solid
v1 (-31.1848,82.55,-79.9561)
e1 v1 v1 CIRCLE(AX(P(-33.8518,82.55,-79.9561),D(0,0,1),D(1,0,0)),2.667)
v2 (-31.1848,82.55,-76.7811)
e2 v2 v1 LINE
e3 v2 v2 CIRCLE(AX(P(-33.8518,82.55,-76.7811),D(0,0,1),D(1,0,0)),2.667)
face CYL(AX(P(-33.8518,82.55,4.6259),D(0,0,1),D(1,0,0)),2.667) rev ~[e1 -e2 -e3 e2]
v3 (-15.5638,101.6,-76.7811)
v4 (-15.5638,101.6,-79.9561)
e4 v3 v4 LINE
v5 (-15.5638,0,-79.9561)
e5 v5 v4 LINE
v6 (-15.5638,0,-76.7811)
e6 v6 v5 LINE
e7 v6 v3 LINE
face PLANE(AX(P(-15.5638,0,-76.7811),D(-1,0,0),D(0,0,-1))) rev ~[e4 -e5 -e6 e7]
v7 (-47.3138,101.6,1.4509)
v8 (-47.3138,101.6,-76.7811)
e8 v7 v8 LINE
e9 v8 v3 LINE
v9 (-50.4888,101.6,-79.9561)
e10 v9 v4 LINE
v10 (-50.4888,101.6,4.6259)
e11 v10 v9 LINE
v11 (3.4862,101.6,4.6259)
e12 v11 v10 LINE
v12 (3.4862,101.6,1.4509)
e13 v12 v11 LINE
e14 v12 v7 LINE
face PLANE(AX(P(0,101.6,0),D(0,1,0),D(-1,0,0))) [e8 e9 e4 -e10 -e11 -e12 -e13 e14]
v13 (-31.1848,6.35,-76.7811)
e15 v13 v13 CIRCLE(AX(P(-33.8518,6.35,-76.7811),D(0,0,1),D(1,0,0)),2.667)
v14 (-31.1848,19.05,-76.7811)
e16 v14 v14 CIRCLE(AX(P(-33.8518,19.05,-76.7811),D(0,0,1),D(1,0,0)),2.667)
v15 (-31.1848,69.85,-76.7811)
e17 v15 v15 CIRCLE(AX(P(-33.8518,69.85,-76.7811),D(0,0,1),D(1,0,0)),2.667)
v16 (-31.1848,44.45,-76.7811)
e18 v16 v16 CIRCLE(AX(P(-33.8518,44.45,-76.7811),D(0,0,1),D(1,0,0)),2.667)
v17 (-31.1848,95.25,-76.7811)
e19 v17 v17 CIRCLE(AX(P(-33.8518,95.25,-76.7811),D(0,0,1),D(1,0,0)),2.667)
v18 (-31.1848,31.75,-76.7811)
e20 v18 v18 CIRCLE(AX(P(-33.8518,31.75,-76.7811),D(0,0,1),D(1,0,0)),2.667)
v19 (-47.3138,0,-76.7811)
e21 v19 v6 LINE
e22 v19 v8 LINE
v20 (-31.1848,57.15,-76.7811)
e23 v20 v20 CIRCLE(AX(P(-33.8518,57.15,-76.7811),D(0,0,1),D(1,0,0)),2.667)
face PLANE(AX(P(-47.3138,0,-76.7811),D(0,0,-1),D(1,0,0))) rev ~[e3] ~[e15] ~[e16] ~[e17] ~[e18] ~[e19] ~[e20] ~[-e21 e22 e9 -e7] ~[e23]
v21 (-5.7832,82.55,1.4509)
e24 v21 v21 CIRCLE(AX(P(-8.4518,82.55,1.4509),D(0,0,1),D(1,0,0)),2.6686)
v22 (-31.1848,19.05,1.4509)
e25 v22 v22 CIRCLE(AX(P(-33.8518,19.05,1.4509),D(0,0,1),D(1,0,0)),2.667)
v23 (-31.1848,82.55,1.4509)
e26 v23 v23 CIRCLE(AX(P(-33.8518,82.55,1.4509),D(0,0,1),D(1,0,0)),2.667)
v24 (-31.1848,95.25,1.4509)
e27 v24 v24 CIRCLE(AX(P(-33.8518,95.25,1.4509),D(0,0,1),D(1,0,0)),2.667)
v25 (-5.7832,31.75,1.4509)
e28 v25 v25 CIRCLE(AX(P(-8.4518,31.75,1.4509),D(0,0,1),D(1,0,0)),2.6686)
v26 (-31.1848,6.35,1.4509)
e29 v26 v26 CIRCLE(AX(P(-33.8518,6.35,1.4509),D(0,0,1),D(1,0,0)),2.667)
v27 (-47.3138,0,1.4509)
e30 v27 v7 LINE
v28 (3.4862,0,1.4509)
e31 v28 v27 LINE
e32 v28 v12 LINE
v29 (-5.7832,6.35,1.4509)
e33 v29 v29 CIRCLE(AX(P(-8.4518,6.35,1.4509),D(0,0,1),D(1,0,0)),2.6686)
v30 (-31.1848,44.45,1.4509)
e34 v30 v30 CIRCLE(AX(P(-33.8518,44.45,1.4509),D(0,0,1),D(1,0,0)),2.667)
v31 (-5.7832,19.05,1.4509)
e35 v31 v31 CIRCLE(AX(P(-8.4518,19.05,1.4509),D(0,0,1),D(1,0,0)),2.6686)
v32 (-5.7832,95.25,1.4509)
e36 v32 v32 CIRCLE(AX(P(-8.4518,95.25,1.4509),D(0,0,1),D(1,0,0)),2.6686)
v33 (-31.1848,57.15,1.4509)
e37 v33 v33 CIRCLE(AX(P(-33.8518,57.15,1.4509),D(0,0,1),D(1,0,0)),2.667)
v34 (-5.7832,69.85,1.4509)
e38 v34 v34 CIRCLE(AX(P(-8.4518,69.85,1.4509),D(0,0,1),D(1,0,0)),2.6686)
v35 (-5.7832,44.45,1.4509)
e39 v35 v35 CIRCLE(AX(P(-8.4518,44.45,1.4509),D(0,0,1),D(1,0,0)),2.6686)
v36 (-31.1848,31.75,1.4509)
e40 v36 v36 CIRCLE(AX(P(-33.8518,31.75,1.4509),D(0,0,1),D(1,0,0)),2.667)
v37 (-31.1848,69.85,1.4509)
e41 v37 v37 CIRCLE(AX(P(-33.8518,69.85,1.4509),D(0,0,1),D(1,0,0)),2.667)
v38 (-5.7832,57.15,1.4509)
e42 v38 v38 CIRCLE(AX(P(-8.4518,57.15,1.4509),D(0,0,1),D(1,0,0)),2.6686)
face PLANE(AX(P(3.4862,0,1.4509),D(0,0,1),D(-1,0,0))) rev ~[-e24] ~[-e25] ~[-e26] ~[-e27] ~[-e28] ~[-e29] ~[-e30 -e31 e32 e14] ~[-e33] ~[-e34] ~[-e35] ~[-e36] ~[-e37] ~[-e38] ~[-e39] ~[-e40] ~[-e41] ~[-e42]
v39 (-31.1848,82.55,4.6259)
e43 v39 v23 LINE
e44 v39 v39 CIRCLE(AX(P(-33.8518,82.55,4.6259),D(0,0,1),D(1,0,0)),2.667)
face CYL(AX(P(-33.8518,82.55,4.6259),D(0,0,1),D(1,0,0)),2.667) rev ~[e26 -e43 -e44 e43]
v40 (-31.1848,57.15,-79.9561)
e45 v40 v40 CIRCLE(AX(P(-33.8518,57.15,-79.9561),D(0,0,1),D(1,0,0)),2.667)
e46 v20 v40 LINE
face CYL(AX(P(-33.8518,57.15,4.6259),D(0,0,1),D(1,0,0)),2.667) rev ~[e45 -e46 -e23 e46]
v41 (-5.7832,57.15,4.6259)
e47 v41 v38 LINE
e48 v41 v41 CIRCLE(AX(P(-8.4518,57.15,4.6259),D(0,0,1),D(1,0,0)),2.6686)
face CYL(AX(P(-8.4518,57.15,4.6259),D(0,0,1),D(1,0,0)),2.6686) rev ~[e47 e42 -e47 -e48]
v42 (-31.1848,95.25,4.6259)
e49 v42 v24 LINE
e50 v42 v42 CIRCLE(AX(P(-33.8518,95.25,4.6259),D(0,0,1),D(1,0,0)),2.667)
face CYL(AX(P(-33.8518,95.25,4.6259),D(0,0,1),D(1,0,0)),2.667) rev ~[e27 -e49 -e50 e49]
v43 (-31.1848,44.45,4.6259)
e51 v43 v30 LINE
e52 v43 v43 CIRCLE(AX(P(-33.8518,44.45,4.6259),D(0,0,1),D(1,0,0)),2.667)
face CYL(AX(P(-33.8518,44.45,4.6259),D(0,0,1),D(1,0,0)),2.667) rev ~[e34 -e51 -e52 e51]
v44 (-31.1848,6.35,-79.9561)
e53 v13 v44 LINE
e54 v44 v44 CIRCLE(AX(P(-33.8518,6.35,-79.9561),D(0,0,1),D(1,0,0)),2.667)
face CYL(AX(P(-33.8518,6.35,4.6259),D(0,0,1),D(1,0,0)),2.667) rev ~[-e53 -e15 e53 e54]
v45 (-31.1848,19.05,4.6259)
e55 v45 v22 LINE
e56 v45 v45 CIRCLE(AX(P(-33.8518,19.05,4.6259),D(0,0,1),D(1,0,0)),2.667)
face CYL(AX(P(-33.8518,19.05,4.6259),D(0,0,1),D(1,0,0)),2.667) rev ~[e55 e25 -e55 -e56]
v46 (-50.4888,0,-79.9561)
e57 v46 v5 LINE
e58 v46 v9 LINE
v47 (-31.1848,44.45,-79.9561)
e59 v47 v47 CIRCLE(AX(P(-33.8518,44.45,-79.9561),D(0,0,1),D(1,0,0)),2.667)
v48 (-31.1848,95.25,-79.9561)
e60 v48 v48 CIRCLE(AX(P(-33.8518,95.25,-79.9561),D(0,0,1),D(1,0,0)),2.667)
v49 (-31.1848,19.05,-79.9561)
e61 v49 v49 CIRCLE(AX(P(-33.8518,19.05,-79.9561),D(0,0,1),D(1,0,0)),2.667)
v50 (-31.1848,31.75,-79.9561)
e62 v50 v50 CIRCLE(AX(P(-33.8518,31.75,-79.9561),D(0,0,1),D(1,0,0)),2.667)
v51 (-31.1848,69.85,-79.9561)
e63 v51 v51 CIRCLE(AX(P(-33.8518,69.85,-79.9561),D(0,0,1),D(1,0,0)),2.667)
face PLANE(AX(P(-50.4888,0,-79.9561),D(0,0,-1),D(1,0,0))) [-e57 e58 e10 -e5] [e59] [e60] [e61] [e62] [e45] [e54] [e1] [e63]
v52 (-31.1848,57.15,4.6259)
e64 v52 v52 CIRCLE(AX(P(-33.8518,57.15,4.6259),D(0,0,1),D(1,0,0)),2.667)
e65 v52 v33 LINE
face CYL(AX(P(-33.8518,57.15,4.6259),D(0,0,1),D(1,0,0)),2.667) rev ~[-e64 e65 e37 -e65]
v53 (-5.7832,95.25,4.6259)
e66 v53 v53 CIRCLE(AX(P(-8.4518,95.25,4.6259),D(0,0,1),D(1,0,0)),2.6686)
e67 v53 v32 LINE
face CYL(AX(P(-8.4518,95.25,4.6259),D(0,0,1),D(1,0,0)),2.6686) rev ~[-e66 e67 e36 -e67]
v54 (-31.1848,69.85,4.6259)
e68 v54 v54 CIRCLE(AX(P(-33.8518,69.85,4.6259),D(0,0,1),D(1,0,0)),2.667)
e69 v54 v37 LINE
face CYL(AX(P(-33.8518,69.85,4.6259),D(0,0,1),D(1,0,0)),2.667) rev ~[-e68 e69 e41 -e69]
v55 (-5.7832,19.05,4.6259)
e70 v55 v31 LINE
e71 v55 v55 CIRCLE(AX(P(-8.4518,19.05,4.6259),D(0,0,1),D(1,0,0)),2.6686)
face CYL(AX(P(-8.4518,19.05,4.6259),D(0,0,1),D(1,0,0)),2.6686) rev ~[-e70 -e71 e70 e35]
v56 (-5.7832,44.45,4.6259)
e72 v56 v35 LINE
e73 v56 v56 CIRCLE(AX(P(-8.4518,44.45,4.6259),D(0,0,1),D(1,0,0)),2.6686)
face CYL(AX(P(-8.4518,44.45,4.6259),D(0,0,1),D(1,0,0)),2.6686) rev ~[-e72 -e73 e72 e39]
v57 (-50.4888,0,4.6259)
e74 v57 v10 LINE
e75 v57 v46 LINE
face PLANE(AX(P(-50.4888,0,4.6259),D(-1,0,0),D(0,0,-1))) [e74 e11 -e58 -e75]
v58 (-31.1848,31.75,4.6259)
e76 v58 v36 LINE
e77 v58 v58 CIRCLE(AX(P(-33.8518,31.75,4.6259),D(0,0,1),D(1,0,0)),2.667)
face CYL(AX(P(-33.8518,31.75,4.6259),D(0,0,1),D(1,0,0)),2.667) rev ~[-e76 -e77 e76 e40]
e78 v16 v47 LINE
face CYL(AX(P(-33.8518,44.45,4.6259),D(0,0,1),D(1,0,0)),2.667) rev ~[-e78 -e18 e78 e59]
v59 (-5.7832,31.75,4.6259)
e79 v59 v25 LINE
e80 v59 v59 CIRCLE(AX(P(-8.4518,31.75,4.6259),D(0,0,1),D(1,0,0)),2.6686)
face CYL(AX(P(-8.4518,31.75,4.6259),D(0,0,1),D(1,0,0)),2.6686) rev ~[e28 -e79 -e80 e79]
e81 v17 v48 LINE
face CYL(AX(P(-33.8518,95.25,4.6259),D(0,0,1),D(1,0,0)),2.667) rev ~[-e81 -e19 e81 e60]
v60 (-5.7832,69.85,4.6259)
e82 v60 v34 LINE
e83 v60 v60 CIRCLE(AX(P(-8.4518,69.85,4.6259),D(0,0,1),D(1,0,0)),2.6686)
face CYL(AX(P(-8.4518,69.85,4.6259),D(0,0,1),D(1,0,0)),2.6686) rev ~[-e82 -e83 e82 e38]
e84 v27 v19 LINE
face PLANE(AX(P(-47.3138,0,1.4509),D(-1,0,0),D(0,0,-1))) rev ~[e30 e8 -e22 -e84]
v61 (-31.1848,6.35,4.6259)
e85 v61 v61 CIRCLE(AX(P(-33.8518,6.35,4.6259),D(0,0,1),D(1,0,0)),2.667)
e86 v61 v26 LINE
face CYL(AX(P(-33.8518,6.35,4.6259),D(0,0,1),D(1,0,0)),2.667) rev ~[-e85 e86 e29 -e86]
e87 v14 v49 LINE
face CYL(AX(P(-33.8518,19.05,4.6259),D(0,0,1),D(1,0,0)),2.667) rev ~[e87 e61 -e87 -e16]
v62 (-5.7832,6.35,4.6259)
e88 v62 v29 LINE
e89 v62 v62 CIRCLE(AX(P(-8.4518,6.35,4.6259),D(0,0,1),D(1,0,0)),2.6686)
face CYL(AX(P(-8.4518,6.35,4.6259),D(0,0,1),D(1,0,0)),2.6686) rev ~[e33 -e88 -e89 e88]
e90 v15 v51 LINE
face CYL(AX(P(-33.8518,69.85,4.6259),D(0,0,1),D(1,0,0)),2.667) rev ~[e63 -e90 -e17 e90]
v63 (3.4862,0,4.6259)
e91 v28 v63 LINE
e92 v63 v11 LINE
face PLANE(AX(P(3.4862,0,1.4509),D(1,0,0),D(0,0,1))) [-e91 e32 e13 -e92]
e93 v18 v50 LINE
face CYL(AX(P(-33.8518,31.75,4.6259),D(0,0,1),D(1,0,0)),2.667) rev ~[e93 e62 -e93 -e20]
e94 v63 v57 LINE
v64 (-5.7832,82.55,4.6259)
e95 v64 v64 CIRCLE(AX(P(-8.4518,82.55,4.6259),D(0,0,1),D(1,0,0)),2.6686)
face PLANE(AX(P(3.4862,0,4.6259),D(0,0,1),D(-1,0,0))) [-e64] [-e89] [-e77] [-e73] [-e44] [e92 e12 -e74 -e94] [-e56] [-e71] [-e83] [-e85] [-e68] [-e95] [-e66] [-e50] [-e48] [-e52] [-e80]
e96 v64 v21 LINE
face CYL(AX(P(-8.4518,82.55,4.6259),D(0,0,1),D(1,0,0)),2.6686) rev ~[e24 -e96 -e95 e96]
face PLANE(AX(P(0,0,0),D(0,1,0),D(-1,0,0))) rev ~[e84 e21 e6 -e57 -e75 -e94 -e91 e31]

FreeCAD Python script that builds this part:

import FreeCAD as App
import Part
import Sketcher
Q = App.Units.Quantity


def add_polygon(sketch, points):
    """Adds a closed chain of lines whose ends are joined by coincident constraints."""
    first, n = sketch.GeometryCount, len(points)
    for a, b in zip(points, points[1:] + points[:1]):
        sketch.addGeometry(Part.LineSegment(App.Vector(*a, 0), App.Vector(*b, 0)), False)
    for i in range(n):
        sketch.addConstraint(Sketcher.Constraint("Coincident", first + i, 2, first + (i + 1) % n, 1))

doc = App.newDocument("Part")
params = doc.addObject("Spreadsheet::Sheet", "Params")
for row, (alias, value) in enumerate([
    ("sketch1_width", "2 in"),
    ("sketch1_width2", "1.25 in"),
    ("sketch1_height", "3.08 in"),
    ("sketch1_height2", "3.33 in"),
    ("sketch1_width3", "2.125 in"),
    ("pad1_length", "4 in"),
    ("sketch2_diameter", "0.21 in"),
    ("pocket1_length", "4.125 in"),
], start=1):
    params.set(f"A{row}", alias)
    params.set(f"B{row}", "=" + value)
    params.setAlias(f"B{row}", alias)

body = doc.addObject("PartDesign::Body", "Body")

sketch1 = body.newObject("Sketcher::SketchObject", "Sketch")
sketch1.AttachmentSupport = (doc.getObject("XZ_Plane"), [""])
sketch1.MapMode = "FlatFace"
add_polygon(sketch1, [(-50.5, 4.6), (3.5, 4.6), (3.5, 1.5), (-47.3, 1.5), (-47.3, -76.8), (-15.6, -76.8), (-15.6, -80), (-50.5, -80)])
sketch1.addConstraint([
    Sketcher.Constraint("Horizontal", 0),
    Sketcher.Constraint("Vertical", 1),
    Sketcher.Constraint("Horizontal", 2),
    Sketcher.Constraint("Vertical", 3),
    Sketcher.Constraint("Horizontal", 4),
    Sketcher.Constraint("Vertical", 5),
    Sketcher.Constraint("Horizontal", 6),
    Sketcher.Constraint("Vertical", 7),
    Sketcher.Constraint("Equal", 1, 5),
    Sketcher.Constraint("DistanceX", 2, 2, 2, 1, Q("2 in")),
    Sketcher.Constraint("DistanceX", 4, 1, 4, 2, Q("1.25 in")),
    Sketcher.Constraint("DistanceY", 3, 2, 3, 1, Q("3.08 in")),
    Sketcher.Constraint("DistanceY", 7, 1, 7, 2, Q("3.33 in")),
    Sketcher.Constraint("DistanceX", 0, 1, 0, 2, Q("2.125 in")),
    Sketcher.Constraint("DistanceX", -1, 1, 0, 2, Q("3.4862 mm")),
    Sketcher.Constraint("DistanceY", -1, 1, 0, 2, Q("4.626 mm")),
])
sketch1.setExpression("Constraints[17]", "Params.sketch1_width")
sketch1.setExpression("Constraints[18]", "Params.sketch1_width2")
sketch1.setExpression("Constraints[19]", "Params.sketch1_height")
sketch1.setExpression("Constraints[20]", "Params.sketch1_height2")
sketch1.setExpression("Constraints[21]", "Params.sketch1_width3")
pad1 = body.newObject("PartDesign::Pad", "Pad")
pad1.Profile = sketch1
pad1.setExpression("Length", "Params.pad1_length")
pad1.Reversed = True

sketch2 = body.newObject("Sketcher::SketchObject", "Sketch001")
sketch2.AttachmentSupport = (doc.getObject("XY_Plane"), [""])
sketch2.MapMode = "FlatFace"
sketch2.AttachmentOffset = App.Placement(App.Vector(0, 0, 4.6259), App.Rotation())
sketch2.addGeometry([
    Part.Circle(App.Vector(-33.9, 95.2, 0), App.Vector(0, 0, 1), 2.7),
    Part.Circle(App.Vector(-8.5, 95.2, 0), App.Vector(0, 0, 1), 2.7),
    Part.Circle(App.Vector(-33.9, 82.5, 0), App.Vector(0, 0, 1), 2.7),
    Part.Circle(App.Vector(-8.5, 82.5, 0), App.Vector(0, 0, 1), 2.7),
    Part.Circle(App.Vector(-33.9, 69.8, 0), App.Vector(0, 0, 1), 2.7),
    Part.Circle(App.Vector(-8.5, 69.8, 0), App.Vector(0, 0, 1), 2.7),
    Part.Circle(App.Vector(-33.9, 57.1, 0), App.Vector(0, 0, 1), 2.7),
    Part.Circle(App.Vector(-8.5, 57.1, 0), App.Vector(0, 0, 1), 2.7),
    Part.Circle(App.Vector(-33.9, 44.5, 0), App.Vector(0, 0, 1), 2.7),
    Part.Circle(App.Vector(-8.5, 44.5, 0), App.Vector(0, 0, 1), 2.7),
    Part.Circle(App.Vector(-33.9, 31.8, 0), App.Vector(0, 0, 1), 2.7),
    Part.Circle(App.Vector(-8.5, 31.8, 0), App.Vector(0, 0, 1), 2.7),
    Part.Circle(App.Vector(-33.9, 19.1, 0), App.Vector(0, 0, 1), 2.7),
    Part.Circle(App.Vector(-8.5, 19.1, 0), App.Vector(0, 0, 1), 2.7),
    Part.Circle(App.Vector(-33.9, 6.3, 0), App.Vector(0, 0, 1), 2.7),
    Part.Circle(App.Vector(-8.5, 6.3, 0), App.Vector(0, 0, 1), 2.7),
], False)
sketch2.addConstraint([
    Sketcher.Constraint("Equal", 0, 2),
    Sketcher.Constraint("Equal", 1, 3),
    Sketcher.Constraint("Equal", 2, 4),
    Sketcher.Constraint("Equal", 3, 5),
    Sketcher.Constraint("Equal", 4, 6),
    Sketcher.Constraint("Equal", 5, 7),
    Sketcher.Constraint("Equal", 6, 8),
    Sketcher.Constraint("Equal", 7, 9),
    Sketcher.Constraint("Equal", 8, 10),
    Sketcher.Constraint("Equal", 9, 11),
    Sketcher.Constraint("Equal", 10, 12),
    Sketcher.Constraint("Equal", 11, 13),
    Sketcher.Constraint("Equal", 12, 14),
    Sketcher.Constraint("Equal", 13, 15),
    Sketcher.Constraint("Horizontal", 0, 3, 1, 3),
    Sketcher.Constraint("Horizontal", 2, 3, 3, 3),
    Sketcher.Constraint("Horizontal", 4, 3, 5, 3),
    Sketcher.Constraint("Horizontal", 6, 3, 7, 3),
    Sketcher.Constraint("Horizontal", 8, 3, 9, 3),
    Sketcher.Constraint("Horizontal", 10, 3, 11, 3),
    Sketcher.Constraint("Horizontal", 12, 3, 13, 3),
    Sketcher.Constraint("Horizontal", 14, 3, 15, 3),
    Sketcher.Constraint("Vertical", 0, 3, 2, 3),
    Sketcher.Constraint("Vertical", 1, 3, 3, 3),
    Sketcher.Constraint("Vertical", 2, 3, 4, 3),
    Sketcher.Constraint("Vertical", 3, 3, 5, 3),
    Sketcher.Constraint("Vertical", 4, 3, 6, 3),
    Sketcher.Constraint("Vertical", 5, 3, 7, 3),
    Sketcher.Constraint("Vertical", 6, 3, 8, 3),
    Sketcher.Constraint("Vertical", 7, 3, 9, 3),
    Sketcher.Constraint("Vertical", 8, 3, 10, 3),
    Sketcher.Constraint("Vertical", 9, 3, 11, 3),
    Sketcher.Constraint("Vertical", 10, 3, 12, 3),
    Sketcher.Constraint("Vertical", 11, 3, 13, 3),
    Sketcher.Constraint("Vertical", 12, 3, 14, 3),
    Sketcher.Constraint("Vertical", 13, 3, 15, 3),
    Sketcher.Constraint("Diameter", 0, Q("0.21 in")),
    Sketcher.Constraint("DistanceX", 0, 3, 1, 3, Q("1 in")),
    Sketcher.Constraint("DistanceY", 4, 3, 0, 3, Q("1 in")),
    Sketcher.Constraint("DistanceY", 6, 3, 2, 3, Q("1 in")),
    Sketcher.Constraint("DistanceY", 8, 3, 4, 3, Q("1 in")),
    Sketcher.Constraint("DistanceY", 10, 3, 6, 3, Q("1 in")),
    Sketcher.Constraint("DistanceY", 12, 3, 8, 3, Q("1 in")),
    Sketcher.Constraint("DistanceY", 14, 3, 10, 3, Q("1 in")),
    Sketcher.Constraint("DistanceY", 2, 3, 0, 3, Q("0.5 in")),
    Sketcher.Constraint("DistanceY", -1, 1, 14, 3, Q("0.25 in")),
    Sketcher.Constraint("Diameter", 1, Q("5.3372 mm")),
    Sketcher.Constraint("DistanceX", 0, 3, -1, 1, Q("33.8518 mm")),
])
sketch2.setExpression("Constraints[36]", "Params.sketch2_diameter")
pocket1 = body.newObject("PartDesign::Pocket", "Pocket")
pocket1.Profile = sketch2
pocket1.setExpression("Length", "Params.pocket1_length")

doc.recompute()
